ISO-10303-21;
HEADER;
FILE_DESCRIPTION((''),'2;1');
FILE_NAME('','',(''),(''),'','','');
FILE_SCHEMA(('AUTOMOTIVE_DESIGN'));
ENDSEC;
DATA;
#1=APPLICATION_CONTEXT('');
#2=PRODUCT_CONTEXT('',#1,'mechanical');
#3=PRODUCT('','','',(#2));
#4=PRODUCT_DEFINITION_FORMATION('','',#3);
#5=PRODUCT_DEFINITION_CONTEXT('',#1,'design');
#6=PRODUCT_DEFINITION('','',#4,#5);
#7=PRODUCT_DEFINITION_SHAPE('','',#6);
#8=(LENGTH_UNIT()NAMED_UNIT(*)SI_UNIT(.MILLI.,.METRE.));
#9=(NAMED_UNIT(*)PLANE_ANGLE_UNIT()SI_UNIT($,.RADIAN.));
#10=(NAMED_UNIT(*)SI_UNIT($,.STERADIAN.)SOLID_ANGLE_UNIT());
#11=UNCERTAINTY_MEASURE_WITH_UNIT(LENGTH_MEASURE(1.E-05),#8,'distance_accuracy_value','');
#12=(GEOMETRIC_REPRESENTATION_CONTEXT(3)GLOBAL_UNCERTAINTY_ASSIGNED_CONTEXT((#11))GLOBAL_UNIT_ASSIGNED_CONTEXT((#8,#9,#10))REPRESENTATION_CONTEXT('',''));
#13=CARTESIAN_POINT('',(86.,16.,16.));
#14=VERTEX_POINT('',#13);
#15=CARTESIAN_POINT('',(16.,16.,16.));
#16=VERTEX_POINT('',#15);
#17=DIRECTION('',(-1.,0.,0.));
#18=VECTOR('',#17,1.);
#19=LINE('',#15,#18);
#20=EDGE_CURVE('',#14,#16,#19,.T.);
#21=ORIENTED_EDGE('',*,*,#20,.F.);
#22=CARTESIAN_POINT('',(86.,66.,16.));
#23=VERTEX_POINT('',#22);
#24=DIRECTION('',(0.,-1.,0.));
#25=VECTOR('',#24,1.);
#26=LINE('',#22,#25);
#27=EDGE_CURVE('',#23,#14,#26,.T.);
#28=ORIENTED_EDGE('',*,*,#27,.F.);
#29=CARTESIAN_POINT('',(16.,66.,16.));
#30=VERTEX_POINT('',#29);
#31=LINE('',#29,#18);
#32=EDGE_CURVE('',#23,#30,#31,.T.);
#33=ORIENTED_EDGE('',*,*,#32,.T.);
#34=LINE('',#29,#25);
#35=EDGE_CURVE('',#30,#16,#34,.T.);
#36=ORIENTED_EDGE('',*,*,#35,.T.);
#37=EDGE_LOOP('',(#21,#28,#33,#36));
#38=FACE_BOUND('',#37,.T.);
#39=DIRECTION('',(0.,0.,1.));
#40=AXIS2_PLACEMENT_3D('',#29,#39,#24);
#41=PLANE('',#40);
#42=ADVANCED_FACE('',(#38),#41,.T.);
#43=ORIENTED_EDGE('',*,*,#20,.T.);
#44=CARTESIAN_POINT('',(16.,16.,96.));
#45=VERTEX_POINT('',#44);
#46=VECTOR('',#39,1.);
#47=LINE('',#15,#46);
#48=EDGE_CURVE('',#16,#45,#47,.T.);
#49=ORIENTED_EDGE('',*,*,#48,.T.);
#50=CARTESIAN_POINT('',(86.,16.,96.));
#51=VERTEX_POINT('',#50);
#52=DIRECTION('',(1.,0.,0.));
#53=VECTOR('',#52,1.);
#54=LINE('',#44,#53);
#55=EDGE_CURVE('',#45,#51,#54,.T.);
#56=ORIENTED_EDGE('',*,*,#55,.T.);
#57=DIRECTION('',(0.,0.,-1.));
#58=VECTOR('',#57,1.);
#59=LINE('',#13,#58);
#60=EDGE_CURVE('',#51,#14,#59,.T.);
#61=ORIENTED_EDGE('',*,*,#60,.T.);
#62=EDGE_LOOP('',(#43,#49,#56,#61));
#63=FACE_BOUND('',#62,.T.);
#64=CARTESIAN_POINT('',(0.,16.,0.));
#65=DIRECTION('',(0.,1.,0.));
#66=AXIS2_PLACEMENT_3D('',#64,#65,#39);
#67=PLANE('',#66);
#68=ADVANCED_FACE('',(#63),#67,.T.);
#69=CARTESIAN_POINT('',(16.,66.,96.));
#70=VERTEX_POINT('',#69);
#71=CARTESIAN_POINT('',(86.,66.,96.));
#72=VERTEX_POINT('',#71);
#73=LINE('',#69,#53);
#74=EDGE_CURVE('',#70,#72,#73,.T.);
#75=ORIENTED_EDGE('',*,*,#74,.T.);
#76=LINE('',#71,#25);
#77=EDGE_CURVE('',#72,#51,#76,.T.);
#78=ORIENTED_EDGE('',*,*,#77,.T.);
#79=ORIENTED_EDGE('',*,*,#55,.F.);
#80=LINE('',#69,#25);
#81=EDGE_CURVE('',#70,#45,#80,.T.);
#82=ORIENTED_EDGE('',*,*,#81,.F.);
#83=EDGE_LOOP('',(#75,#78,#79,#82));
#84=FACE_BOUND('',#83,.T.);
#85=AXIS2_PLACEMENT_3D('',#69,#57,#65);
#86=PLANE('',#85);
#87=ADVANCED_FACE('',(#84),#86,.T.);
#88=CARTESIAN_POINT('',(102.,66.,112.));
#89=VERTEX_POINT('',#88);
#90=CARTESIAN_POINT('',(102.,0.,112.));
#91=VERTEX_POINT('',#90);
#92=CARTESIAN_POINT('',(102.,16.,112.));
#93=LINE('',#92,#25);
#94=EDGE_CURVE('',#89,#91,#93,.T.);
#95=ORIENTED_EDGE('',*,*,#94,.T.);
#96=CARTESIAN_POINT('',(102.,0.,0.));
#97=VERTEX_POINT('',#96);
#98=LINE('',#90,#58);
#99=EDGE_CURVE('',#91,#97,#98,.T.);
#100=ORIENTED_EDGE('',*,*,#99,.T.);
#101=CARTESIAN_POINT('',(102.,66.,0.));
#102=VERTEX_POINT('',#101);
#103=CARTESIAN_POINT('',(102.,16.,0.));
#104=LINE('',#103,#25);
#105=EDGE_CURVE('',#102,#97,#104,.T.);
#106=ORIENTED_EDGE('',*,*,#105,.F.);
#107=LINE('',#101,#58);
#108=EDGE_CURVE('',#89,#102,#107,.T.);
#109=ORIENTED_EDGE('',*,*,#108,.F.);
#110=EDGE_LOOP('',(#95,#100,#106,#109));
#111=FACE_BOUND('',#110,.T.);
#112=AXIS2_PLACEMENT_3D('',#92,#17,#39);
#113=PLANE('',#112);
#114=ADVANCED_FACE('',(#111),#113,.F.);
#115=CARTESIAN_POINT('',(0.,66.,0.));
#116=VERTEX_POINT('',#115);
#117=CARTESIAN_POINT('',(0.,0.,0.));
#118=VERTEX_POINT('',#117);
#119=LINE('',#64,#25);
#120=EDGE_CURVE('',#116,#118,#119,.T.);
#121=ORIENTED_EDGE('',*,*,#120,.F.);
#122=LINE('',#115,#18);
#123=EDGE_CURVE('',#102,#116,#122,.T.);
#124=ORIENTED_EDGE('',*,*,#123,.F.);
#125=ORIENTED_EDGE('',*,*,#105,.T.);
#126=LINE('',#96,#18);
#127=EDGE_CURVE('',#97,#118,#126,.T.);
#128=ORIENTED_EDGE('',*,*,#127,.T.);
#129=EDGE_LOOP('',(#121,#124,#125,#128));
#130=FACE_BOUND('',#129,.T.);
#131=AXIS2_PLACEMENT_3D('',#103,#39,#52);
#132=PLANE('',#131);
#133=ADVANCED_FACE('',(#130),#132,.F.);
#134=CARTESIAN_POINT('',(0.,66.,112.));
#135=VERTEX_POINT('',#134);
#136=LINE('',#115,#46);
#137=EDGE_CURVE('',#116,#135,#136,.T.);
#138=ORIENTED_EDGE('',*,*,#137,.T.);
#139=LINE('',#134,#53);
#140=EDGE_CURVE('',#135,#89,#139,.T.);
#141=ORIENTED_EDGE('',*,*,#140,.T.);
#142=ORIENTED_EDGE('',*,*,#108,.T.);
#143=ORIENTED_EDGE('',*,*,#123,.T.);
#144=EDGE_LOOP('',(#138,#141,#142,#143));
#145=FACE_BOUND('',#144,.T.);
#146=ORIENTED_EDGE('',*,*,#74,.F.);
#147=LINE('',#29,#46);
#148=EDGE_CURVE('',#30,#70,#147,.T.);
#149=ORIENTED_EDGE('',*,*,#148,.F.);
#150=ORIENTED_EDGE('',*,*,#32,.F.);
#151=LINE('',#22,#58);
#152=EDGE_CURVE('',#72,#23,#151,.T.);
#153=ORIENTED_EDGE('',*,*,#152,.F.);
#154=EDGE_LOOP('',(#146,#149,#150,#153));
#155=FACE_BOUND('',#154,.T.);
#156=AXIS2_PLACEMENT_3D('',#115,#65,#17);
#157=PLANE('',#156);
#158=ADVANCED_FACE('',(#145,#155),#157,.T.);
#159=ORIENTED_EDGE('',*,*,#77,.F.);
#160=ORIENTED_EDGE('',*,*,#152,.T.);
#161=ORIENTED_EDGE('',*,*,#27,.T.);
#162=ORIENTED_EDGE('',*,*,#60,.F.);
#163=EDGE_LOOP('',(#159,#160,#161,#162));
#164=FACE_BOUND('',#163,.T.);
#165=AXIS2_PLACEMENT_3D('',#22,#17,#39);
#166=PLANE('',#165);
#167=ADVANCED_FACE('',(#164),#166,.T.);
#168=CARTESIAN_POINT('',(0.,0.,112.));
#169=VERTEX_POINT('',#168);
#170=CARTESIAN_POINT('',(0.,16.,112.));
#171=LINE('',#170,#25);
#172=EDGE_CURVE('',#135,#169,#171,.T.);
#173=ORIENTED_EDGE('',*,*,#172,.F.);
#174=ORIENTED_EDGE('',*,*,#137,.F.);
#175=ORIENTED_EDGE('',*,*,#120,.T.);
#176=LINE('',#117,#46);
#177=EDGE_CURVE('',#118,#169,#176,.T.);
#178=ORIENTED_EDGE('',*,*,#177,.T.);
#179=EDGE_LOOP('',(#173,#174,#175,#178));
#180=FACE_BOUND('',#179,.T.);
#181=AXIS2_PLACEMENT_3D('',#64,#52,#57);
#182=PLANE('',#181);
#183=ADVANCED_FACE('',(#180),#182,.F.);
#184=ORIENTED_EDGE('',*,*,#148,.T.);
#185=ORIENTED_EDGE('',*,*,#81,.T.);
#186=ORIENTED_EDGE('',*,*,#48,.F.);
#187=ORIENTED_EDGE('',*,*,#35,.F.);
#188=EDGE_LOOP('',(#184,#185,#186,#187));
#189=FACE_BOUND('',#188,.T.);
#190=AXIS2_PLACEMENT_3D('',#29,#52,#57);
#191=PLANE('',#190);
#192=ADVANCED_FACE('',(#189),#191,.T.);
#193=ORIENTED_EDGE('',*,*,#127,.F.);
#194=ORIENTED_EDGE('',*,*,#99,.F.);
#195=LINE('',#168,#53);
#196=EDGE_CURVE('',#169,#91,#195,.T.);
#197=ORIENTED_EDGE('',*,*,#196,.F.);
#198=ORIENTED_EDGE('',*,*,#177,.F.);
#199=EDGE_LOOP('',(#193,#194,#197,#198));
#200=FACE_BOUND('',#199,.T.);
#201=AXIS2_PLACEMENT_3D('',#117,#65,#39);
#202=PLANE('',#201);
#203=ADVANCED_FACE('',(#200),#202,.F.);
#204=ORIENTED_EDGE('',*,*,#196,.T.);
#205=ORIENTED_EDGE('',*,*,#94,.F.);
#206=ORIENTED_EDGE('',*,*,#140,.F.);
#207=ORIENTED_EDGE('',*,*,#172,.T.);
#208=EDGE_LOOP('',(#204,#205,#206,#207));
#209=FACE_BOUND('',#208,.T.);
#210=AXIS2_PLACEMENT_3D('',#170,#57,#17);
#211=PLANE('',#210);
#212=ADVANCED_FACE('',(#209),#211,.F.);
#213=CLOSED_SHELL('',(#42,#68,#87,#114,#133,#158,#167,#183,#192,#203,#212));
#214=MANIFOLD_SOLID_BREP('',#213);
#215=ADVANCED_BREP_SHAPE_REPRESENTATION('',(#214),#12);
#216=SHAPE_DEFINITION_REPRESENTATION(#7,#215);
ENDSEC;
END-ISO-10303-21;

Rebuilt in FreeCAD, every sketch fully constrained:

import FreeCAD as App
import Part
import Sketcher
from FreeCAD import Vector
Q = App.Units.Quantity

doc = App.newDocument("Part")
params = doc.addObject("Spreadsheet::Sheet", "Params")
for row, (alias, value) in enumerate([
    ("sketch1_width", "102 mm"),
    ("sketch1_height", "112 mm"),
    ("pad1_length", "16 mm"),
    ("sketch2_width", "102 mm"),
    ("sketch2_width2", "70 mm"),
    ("sketch2_height", "112 mm"),
    ("sketch2_height2", "80 mm"),
    ("pad2_length", "50 mm"),
], start=1):
    params.set(f"A{row}", alias)
    params.set(f"B{row}", "=" + value)
    params.setAlias(f"B{row}", alias)

body = doc.addObject("PartDesign::Body", "Body")

sketch1 = body.newObject("Sketcher::SketchObject", "Sketch")
sketch1.AttachmentSupport = (doc.getObject("XZ_Plane"), [""])
sketch1.MapMode = "FlatFace"
sketch1.addGeometry([
    Part.LineSegment(Vector(0, 0, 0), Vector(0, 112, 0)),
    Part.LineSegment(Vector(0, 112, 0), Vector(102, 112, 0)),
    Part.LineSegment(Vector(102, 112, 0), Vector(102, 0, 0)),
    Part.LineSegment(Vector(102, 0, 0), Vector(0, 0, 0)),
], False)
sketch1.addConstraint([
    Sketcher.Constraint("Coincident", 0, 2, 1, 1),
    Sketcher.Constraint("Coincident", 1, 2, 2, 1),
    Sketcher.Constraint("Coincident", 2, 2, 3, 1),
    Sketcher.Constraint("Coincident", 3, 2, 0, 1),
    Sketcher.Constraint("Vertical", 0),
    Sketcher.Constraint("Horizontal", 1),
    Sketcher.Constraint("Vertical", 2),
    Sketcher.Constraint("Horizontal", 3),
    Sketcher.Constraint("Coincident", 3, 2, -1, 1),
    Sketcher.Constraint("DistanceX", 1, 1, 1, 2, Q("102 mm")),
    Sketcher.Constraint("DistanceY", 0, 1, 0, 2, Q("112 mm")),
])
sketch1.setExpression("Constraints[9]", "Params.sketch1_width")
sketch1.setExpression("Constraints[10]", "Params.sketch1_height")
pad1 = body.newObject("PartDesign::Pad", "Pad")
pad1.Profile = sketch1
pad1.setExpression("Length", "Params.pad1_length")
pad1.Reversed = True

sketch2 = body.newObject("Sketcher::SketchObject", "Sketch001")
sketch2.AttachmentSupport = (doc.getObject("XZ_Plane"), [""])
sketch2.MapMode = "FlatFace"
sketch2.AttachmentOffset = App.Placement(Vector(0, 0, -16), App.Rotation())
sketch2.addGeometry([
    Part.LineSegment(Vector(0, 0, 0), Vector(0, 112, 0)),
    Part.LineSegment(Vector(0, 112, 0), Vector(102, 112, 0)),
    Part.LineSegment(Vector(102, 112, 0), Vector(102, 0, 0)),
    Part.LineSegment(Vector(102, 0, 0), Vector(0, 0, 0)),
    Part.LineSegment(Vector(86, 96, 0), Vector(16, 96, 0)),
    Part.LineSegment(Vector(16, 96, 0), Vector(16, 16, 0)),
    Part.LineSegment(Vector(16, 16, 0), Vector(86, 16, 0)),
    Part.LineSegment(Vector(86, 16, 0), Vector(86, 96, 0)),
], False)
sketch2.addConstraint([
    Sketcher.Constraint("Coincident", 0, 2, 1, 1),
    Sketcher.Constraint("Coincident", 1, 2, 2, 1),
    Sketcher.Constraint("Coincident", 2, 2, 3, 1),
    Sketcher.Constraint("Coincident", 3, 2, 0, 1),
    Sketcher.Constraint("Coincident", 4, 2, 5, 1),
    Sketcher.Constraint("Coincident", 5, 2, 6, 1),
    Sketcher.Constraint("Coincident", 6, 2, 7, 1),
    Sketcher.Constraint("Coincident", 7, 2, 4, 1),
    Sketcher.Constraint("Vertical", 0),
    Sketcher.Constraint("Horizontal", 1),
    Sketcher.Constraint("Vertical", 2),
    Sketcher.Constraint("Horizontal", 3),
    Sketcher.Constraint("Horizontal", 4),
    Sketcher.Constraint("Vertical", 5),
    Sketcher.Constraint("Horizontal", 6),
    Sketcher.Constraint("Vertical", 7),
    Sketcher.Constraint("Coincident", 3, 2, -1, 1),
    Sketcher.Constraint("DistanceX", 1, 1, 1, 2, Q("102 mm")),
    Sketcher.Constraint("DistanceX", 4, 2, 4, 1, Q("70 mm")),
    Sketcher.Constraint("DistanceY", 0, 1, 0, 2, Q("112 mm")),
    Sketcher.Constraint("DistanceY", 5, 2, 5, 1, Q("80 mm")),
    Sketcher.Constraint("DistanceX", -1, 1, 4, 2, Q("16 mm")),
    Sketcher.Constraint("DistanceY", -1, 1, 4, 2, Q("96 mm")),
])
sketch2.setExpression("Constraints[17]", "Params.sketch2_width")
sketch2.setExpression("Constraints[18]", "Params.sketch2_width2")
sketch2.setExpression("Constraints[19]", "Params.sketch2_height")
sketch2.setExpression("Constraints[20]", "Params.sketch2_height2")
pad2 = body.newObject("PartDesign::Pad", "Pad001")
pad2.Profile = sketch2
pad2.setExpression("Length", "Params.pad2_length")
pad2.Reversed = True

doc.recompute()
